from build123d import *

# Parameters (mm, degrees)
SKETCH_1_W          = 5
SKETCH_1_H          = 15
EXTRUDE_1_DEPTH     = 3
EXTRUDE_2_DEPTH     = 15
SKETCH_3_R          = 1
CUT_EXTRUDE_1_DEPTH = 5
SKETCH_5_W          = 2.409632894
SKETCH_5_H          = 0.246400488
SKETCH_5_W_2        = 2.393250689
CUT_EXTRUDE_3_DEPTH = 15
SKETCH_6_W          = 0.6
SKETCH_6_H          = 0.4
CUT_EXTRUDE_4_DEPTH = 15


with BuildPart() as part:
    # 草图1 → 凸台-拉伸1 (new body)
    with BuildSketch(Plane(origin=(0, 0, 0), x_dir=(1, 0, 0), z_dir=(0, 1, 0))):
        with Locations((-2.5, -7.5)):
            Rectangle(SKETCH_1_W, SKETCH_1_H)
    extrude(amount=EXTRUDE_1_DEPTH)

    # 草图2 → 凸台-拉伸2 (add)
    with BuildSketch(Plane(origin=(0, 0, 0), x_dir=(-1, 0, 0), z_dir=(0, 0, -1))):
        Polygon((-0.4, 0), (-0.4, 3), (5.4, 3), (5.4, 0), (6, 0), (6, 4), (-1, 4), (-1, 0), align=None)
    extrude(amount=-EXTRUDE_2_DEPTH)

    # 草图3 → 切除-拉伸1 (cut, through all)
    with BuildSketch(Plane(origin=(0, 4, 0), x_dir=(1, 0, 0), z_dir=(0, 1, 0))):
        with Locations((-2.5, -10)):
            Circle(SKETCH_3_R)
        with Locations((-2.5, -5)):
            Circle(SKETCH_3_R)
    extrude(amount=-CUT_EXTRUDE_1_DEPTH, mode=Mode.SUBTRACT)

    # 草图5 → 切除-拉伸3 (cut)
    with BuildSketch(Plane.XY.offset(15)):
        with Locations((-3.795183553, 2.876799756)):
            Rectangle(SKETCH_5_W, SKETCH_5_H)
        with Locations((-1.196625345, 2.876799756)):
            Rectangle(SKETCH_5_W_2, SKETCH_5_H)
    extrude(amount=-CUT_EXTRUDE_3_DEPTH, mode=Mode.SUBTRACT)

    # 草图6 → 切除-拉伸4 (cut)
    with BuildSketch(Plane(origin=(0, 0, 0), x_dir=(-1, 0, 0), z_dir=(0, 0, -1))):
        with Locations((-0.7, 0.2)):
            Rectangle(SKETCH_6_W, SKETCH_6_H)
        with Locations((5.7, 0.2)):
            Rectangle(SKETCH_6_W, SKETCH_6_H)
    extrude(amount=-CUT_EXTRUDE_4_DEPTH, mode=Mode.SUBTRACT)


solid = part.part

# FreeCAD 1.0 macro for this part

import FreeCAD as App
import Part
import Sketcher


def add_polygon(sketch, points):
    """Adds a closed chain of lines whose ends are joined by coincident constraints."""
    first, n = sketch.GeometryCount, len(points)
    for a, b in zip(points, points[1:] + points[:1]):
        sketch.addGeometry(Part.LineSegment(App.Vector(*a, 0), App.Vector(*b, 0)), False)
    for i in range(n):
        sketch.addConstraint(Sketcher.Constraint("Coincident", first + i, 2, first + (i + 1) % n, 1))

doc = App.newDocument("Part")
body = doc.addObject("PartDesign::Body", "Body")

# Sketch on XZ plane
sketch1 = body.newObject("Sketcher::SketchObject", "Sketch")
sketch1.AttachmentSupport = (doc.getObject("XZ_Plane"), [""])
sketch1.MapMode = "FlatFace"
add_polygon(sketch1, [(-5, 0), (-5, 15), (0, 15), (0, 0)])  # lines 0-3
sketch1.addConstraint(Sketcher.Constraint("Vertical", 0))
sketch1.addConstraint(Sketcher.Constraint("Horizontal", 1))
sketch1.addConstraint(Sketcher.Constraint("Vertical", 2))
sketch1.addConstraint(Sketcher.Constraint("Horizontal", 3))
sketch1.addConstraint(Sketcher.Constraint("Coincident", 2, 2, -1, 1))
sketch1.addConstraint(Sketcher.Constraint("DistanceX", 1, 1, 1, 2, 5.0))
sketch1.addConstraint(Sketcher.Constraint("DistanceY", 0, 1, 0, 2, 15.0))
pad1 = body.newObject("PartDesign::Pad", "Pad")
pad1.Profile = sketch1
pad1.Length = 3
pad1.Reversed = True

# Sketch on XY plane
sketch2 = body.newObject("Sketcher::SketchObject", "Sketch001")
sketch2.AttachmentSupport = (doc.getObject("XY_Plane"), [""])
sketch2.MapMode = "FlatFace"
add_polygon(sketch2, [(0.4, 0), (0.4, 3), (-5.4, 3), (-5.4, 0), (-6, 0), (-6, 4), (1, 4), (1, 0)])  # lines 0-7
sketch2.addConstraint(Sketcher.Constraint("Vertical", 0))
sketch2.addConstraint(Sketcher.Constraint("Horizontal", 1))
sketch2.addConstraint(Sketcher.Constraint("Vertical", 2))
sketch2.addConstraint(Sketcher.Constraint("Horizontal", 3))
sketch2.addConstraint(Sketcher.Constraint("Vertical", 4))
sketch2.addConstraint(Sketcher.Constraint("Horizontal", 5))
sketch2.addConstraint(Sketcher.Constraint("Vertical", 6))
sketch2.addConstraint(Sketcher.Constraint("Horizontal", 7))
sketch2.addConstraint(Sketcher.Constraint("PointOnObject", 2, 2, -1))
sketch2.addConstraint(Sketcher.Constraint("PointOnObject", 6, 2, -1))
sketch2.addConstraint(Sketcher.Constraint("Equal", 3, 7))
sketch2.addConstraint(Sketcher.Constraint("DistanceX", 5, 1, 5, 2, 7.0))
sketch2.addConstraint(Sketcher.Constraint("DistanceY", 0, 1, 0, 2, 3.0))
sketch2.addConstraint(Sketcher.Constraint("DistanceY", 4, 1, 4, 2, 4.0))
sketch2.addConstraint(Sketcher.Constraint("DistanceX", 1, 2, 1, 1, 5.8))
sketch2.addConstraint(Sketcher.Constraint("DistanceX", 3, 2, -1, 1, 6.0))
pad2 = body.newObject("PartDesign::Pad", "Pad001")
pad2.Profile = sketch2
pad2.Length = 15

# Sketch on XZ plane
sketch3 = body.newObject("Sketcher::SketchObject", "Sketch002")
sketch3.AttachmentSupport = (doc.getObject("XZ_Plane"), [""])
sketch3.MapMode = "FlatFace"
sketch3.AttachmentOffset = App.Placement(App.Vector(0, 0, -4), App.Rotation())
sketch3.addGeometry(Part.Circle(App.Vector(-2.5, 10, 0), App.Vector(0, 0, 1), 1), False)
sketch3.addGeometry(Part.Circle(App.Vector(-2.5, 5, 0), App.Vector(0, 0, 1), 1), False)
sketch3.addConstraint(Sketcher.Constraint("Equal", 0, 1))
sketch3.addConstraint(Sketcher.Constraint("Vertical", 0, 3, 1, 3))
sketch3.addConstraint(Sketcher.Constraint("Diameter", 0, 2.0))
sketch3.addConstraint(Sketcher.Constraint("DistanceY", -1, 1, 0, 3, 10.0))
sketch3.addConstraint(Sketcher.Constraint("DistanceY", -1, 1, 1, 3, 5.0))
sketch3.addConstraint(Sketcher.Constraint("DistanceX", 0, 3, -1, 1, 2.5))
pocket1 = body.newObject("PartDesign::Pocket", "Pocket")
pocket1.Profile = sketch3
pocket1.Type = "ThroughAll"
pocket1.Reversed = True

# Sketch on XY plane
sketch4 = body.newObject("Sketcher::SketchObject", "Sketch003")
sketch4.AttachmentSupport = (doc.getObject("XY_Plane"), [""])
sketch4.MapMode = "FlatFace"
sketch4.AttachmentOffset = App.Placement(App.Vector(0, 0, 15), App.Rotation())
add_polygon(sketch4, [(-5, 3), (-5, 2.75), (-2.59, 2.75), (-2.59, 3)])  # lines 0-3
add_polygon(sketch4, [(-2.39, 3), (-2.39, 2.75), (0, 2.75), (0, 3)])  # lines 4-7
sketch4.addConstraint(Sketcher.Constraint("Vertical", 0))
sketch4.addConstraint(Sketcher.Constraint("Horizontal", 1))
sketch4.addConstraint(Sketcher.Constraint("Vertical", 2))
sketch4.addConstraint(Sketcher.Constraint("Horizontal", 3))
sketch4.addConstraint(Sketcher.Constraint("Vertical", 4))
sketch4.addConstraint(Sketcher.Constraint("Horizontal", 5))
sketch4.addConstraint(Sketcher.Constraint("Vertical", 6))
sketch4.addConstraint(Sketcher.Constraint("Horizontal", 7))
sketch4.addConstraint(Sketcher.Constraint("PointOnObject", 5, 2, -2))
sketch4.addConstraint(Sketcher.Constraint("Horizontal", 1, 2, 4, 2))
sketch4.addConstraint(Sketcher.Constraint("Horizontal", 3, 2, 6, 2))
sketch4.addConstraint(Sketcher.Constraint("DistanceX", 0, 2, -1, 1, 5.0))
sketch4.addConstraint(Sketcher.Constraint("DistanceY", -1, 1, 2, 2, 3.0))
sketch4.addConstraint(Sketcher.Constraint("DistanceY", 0, 2, 0, 1, 0.2464))
sketch4.addConstraint(Sketcher.Constraint("DistanceX", 5, 1, 5, 2, 2.393251))
sketch4.addConstraint(Sketcher.Constraint("DistanceX", 1, 1, 1, 2, 2.409633))
pocket2 = body.newObject("PartDesign::Pocket", "Pocket001")
pocket2.Profile = sketch4
pocket2.Length = 15

# Sketch on XY plane
sketch5 = body.newObject("Sketcher::SketchObject", "Sketch004")
sketch5.AttachmentSupport = (doc.getObject("XY_Plane"), [""])
sketch5.MapMode = "FlatFace"
add_polygon(sketch5, [(1, 0.4), (1, 0), (0.4, 0), (0.4, 0.4)])  # lines 0-3
add_polygon(sketch5, [(-5.4, 0.4), (-5.4, 0), (-6, 0), (-6, 0.4)])  # lines 4-7
sketch5.addConstraint(Sketcher.Constraint("Vertical", 0))
sketch5.addConstraint(Sketcher.Constraint("Horizontal", 1))
sketch5.addConstraint(Sketcher.Constraint("Vertical", 2))
sketch5.addConstraint(Sketcher.Constraint("Horizontal", 3))
sketch5.addConstraint(Sketcher.Constraint("Vertical", 4))
sketch5.addConstraint(Sketcher.Constraint("Horizontal", 5))
sketch5.addConstraint(Sketcher.Constraint("Vertical", 6))
sketch5.addConstraint(Sketcher.Constraint("Horizontal", 7))
sketch5.addConstraint(Sketcher.Constraint("PointOnObject", 0, 2, -1))
sketch5.addConstraint(Sketcher.Constraint("PointOnObject", 4, 2, -1))
sketch5.addConstraint(Sketcher.Constraint("Horizontal", 3, 2, 6, 2))
sketch5.addConstraint(Sketcher.Constraint("Equal", 3, 5))
sketch5.addConstraint(Sketcher.Constraint("DistanceX", 1, 2, 1, 1, 0.6))
sketch5.addConstraint(Sketcher.Constraint("DistanceY", 0, 2, 0, 1, 0.4))
sketch5.addConstraint(Sketcher.Constraint("DistanceX", -1, 1, 0, 2, 1.0))
sketch5.addConstraint(Sketcher.Constraint("DistanceX", 5, 2, -1, 1, 6.0))
pocket3 = body.newObject("PartDesign::Pocket", "Pocket002")
pocket3.Profile = sketch5
pocket3.Length = 15
pocket3.Reversed = True

doc.recompute()
